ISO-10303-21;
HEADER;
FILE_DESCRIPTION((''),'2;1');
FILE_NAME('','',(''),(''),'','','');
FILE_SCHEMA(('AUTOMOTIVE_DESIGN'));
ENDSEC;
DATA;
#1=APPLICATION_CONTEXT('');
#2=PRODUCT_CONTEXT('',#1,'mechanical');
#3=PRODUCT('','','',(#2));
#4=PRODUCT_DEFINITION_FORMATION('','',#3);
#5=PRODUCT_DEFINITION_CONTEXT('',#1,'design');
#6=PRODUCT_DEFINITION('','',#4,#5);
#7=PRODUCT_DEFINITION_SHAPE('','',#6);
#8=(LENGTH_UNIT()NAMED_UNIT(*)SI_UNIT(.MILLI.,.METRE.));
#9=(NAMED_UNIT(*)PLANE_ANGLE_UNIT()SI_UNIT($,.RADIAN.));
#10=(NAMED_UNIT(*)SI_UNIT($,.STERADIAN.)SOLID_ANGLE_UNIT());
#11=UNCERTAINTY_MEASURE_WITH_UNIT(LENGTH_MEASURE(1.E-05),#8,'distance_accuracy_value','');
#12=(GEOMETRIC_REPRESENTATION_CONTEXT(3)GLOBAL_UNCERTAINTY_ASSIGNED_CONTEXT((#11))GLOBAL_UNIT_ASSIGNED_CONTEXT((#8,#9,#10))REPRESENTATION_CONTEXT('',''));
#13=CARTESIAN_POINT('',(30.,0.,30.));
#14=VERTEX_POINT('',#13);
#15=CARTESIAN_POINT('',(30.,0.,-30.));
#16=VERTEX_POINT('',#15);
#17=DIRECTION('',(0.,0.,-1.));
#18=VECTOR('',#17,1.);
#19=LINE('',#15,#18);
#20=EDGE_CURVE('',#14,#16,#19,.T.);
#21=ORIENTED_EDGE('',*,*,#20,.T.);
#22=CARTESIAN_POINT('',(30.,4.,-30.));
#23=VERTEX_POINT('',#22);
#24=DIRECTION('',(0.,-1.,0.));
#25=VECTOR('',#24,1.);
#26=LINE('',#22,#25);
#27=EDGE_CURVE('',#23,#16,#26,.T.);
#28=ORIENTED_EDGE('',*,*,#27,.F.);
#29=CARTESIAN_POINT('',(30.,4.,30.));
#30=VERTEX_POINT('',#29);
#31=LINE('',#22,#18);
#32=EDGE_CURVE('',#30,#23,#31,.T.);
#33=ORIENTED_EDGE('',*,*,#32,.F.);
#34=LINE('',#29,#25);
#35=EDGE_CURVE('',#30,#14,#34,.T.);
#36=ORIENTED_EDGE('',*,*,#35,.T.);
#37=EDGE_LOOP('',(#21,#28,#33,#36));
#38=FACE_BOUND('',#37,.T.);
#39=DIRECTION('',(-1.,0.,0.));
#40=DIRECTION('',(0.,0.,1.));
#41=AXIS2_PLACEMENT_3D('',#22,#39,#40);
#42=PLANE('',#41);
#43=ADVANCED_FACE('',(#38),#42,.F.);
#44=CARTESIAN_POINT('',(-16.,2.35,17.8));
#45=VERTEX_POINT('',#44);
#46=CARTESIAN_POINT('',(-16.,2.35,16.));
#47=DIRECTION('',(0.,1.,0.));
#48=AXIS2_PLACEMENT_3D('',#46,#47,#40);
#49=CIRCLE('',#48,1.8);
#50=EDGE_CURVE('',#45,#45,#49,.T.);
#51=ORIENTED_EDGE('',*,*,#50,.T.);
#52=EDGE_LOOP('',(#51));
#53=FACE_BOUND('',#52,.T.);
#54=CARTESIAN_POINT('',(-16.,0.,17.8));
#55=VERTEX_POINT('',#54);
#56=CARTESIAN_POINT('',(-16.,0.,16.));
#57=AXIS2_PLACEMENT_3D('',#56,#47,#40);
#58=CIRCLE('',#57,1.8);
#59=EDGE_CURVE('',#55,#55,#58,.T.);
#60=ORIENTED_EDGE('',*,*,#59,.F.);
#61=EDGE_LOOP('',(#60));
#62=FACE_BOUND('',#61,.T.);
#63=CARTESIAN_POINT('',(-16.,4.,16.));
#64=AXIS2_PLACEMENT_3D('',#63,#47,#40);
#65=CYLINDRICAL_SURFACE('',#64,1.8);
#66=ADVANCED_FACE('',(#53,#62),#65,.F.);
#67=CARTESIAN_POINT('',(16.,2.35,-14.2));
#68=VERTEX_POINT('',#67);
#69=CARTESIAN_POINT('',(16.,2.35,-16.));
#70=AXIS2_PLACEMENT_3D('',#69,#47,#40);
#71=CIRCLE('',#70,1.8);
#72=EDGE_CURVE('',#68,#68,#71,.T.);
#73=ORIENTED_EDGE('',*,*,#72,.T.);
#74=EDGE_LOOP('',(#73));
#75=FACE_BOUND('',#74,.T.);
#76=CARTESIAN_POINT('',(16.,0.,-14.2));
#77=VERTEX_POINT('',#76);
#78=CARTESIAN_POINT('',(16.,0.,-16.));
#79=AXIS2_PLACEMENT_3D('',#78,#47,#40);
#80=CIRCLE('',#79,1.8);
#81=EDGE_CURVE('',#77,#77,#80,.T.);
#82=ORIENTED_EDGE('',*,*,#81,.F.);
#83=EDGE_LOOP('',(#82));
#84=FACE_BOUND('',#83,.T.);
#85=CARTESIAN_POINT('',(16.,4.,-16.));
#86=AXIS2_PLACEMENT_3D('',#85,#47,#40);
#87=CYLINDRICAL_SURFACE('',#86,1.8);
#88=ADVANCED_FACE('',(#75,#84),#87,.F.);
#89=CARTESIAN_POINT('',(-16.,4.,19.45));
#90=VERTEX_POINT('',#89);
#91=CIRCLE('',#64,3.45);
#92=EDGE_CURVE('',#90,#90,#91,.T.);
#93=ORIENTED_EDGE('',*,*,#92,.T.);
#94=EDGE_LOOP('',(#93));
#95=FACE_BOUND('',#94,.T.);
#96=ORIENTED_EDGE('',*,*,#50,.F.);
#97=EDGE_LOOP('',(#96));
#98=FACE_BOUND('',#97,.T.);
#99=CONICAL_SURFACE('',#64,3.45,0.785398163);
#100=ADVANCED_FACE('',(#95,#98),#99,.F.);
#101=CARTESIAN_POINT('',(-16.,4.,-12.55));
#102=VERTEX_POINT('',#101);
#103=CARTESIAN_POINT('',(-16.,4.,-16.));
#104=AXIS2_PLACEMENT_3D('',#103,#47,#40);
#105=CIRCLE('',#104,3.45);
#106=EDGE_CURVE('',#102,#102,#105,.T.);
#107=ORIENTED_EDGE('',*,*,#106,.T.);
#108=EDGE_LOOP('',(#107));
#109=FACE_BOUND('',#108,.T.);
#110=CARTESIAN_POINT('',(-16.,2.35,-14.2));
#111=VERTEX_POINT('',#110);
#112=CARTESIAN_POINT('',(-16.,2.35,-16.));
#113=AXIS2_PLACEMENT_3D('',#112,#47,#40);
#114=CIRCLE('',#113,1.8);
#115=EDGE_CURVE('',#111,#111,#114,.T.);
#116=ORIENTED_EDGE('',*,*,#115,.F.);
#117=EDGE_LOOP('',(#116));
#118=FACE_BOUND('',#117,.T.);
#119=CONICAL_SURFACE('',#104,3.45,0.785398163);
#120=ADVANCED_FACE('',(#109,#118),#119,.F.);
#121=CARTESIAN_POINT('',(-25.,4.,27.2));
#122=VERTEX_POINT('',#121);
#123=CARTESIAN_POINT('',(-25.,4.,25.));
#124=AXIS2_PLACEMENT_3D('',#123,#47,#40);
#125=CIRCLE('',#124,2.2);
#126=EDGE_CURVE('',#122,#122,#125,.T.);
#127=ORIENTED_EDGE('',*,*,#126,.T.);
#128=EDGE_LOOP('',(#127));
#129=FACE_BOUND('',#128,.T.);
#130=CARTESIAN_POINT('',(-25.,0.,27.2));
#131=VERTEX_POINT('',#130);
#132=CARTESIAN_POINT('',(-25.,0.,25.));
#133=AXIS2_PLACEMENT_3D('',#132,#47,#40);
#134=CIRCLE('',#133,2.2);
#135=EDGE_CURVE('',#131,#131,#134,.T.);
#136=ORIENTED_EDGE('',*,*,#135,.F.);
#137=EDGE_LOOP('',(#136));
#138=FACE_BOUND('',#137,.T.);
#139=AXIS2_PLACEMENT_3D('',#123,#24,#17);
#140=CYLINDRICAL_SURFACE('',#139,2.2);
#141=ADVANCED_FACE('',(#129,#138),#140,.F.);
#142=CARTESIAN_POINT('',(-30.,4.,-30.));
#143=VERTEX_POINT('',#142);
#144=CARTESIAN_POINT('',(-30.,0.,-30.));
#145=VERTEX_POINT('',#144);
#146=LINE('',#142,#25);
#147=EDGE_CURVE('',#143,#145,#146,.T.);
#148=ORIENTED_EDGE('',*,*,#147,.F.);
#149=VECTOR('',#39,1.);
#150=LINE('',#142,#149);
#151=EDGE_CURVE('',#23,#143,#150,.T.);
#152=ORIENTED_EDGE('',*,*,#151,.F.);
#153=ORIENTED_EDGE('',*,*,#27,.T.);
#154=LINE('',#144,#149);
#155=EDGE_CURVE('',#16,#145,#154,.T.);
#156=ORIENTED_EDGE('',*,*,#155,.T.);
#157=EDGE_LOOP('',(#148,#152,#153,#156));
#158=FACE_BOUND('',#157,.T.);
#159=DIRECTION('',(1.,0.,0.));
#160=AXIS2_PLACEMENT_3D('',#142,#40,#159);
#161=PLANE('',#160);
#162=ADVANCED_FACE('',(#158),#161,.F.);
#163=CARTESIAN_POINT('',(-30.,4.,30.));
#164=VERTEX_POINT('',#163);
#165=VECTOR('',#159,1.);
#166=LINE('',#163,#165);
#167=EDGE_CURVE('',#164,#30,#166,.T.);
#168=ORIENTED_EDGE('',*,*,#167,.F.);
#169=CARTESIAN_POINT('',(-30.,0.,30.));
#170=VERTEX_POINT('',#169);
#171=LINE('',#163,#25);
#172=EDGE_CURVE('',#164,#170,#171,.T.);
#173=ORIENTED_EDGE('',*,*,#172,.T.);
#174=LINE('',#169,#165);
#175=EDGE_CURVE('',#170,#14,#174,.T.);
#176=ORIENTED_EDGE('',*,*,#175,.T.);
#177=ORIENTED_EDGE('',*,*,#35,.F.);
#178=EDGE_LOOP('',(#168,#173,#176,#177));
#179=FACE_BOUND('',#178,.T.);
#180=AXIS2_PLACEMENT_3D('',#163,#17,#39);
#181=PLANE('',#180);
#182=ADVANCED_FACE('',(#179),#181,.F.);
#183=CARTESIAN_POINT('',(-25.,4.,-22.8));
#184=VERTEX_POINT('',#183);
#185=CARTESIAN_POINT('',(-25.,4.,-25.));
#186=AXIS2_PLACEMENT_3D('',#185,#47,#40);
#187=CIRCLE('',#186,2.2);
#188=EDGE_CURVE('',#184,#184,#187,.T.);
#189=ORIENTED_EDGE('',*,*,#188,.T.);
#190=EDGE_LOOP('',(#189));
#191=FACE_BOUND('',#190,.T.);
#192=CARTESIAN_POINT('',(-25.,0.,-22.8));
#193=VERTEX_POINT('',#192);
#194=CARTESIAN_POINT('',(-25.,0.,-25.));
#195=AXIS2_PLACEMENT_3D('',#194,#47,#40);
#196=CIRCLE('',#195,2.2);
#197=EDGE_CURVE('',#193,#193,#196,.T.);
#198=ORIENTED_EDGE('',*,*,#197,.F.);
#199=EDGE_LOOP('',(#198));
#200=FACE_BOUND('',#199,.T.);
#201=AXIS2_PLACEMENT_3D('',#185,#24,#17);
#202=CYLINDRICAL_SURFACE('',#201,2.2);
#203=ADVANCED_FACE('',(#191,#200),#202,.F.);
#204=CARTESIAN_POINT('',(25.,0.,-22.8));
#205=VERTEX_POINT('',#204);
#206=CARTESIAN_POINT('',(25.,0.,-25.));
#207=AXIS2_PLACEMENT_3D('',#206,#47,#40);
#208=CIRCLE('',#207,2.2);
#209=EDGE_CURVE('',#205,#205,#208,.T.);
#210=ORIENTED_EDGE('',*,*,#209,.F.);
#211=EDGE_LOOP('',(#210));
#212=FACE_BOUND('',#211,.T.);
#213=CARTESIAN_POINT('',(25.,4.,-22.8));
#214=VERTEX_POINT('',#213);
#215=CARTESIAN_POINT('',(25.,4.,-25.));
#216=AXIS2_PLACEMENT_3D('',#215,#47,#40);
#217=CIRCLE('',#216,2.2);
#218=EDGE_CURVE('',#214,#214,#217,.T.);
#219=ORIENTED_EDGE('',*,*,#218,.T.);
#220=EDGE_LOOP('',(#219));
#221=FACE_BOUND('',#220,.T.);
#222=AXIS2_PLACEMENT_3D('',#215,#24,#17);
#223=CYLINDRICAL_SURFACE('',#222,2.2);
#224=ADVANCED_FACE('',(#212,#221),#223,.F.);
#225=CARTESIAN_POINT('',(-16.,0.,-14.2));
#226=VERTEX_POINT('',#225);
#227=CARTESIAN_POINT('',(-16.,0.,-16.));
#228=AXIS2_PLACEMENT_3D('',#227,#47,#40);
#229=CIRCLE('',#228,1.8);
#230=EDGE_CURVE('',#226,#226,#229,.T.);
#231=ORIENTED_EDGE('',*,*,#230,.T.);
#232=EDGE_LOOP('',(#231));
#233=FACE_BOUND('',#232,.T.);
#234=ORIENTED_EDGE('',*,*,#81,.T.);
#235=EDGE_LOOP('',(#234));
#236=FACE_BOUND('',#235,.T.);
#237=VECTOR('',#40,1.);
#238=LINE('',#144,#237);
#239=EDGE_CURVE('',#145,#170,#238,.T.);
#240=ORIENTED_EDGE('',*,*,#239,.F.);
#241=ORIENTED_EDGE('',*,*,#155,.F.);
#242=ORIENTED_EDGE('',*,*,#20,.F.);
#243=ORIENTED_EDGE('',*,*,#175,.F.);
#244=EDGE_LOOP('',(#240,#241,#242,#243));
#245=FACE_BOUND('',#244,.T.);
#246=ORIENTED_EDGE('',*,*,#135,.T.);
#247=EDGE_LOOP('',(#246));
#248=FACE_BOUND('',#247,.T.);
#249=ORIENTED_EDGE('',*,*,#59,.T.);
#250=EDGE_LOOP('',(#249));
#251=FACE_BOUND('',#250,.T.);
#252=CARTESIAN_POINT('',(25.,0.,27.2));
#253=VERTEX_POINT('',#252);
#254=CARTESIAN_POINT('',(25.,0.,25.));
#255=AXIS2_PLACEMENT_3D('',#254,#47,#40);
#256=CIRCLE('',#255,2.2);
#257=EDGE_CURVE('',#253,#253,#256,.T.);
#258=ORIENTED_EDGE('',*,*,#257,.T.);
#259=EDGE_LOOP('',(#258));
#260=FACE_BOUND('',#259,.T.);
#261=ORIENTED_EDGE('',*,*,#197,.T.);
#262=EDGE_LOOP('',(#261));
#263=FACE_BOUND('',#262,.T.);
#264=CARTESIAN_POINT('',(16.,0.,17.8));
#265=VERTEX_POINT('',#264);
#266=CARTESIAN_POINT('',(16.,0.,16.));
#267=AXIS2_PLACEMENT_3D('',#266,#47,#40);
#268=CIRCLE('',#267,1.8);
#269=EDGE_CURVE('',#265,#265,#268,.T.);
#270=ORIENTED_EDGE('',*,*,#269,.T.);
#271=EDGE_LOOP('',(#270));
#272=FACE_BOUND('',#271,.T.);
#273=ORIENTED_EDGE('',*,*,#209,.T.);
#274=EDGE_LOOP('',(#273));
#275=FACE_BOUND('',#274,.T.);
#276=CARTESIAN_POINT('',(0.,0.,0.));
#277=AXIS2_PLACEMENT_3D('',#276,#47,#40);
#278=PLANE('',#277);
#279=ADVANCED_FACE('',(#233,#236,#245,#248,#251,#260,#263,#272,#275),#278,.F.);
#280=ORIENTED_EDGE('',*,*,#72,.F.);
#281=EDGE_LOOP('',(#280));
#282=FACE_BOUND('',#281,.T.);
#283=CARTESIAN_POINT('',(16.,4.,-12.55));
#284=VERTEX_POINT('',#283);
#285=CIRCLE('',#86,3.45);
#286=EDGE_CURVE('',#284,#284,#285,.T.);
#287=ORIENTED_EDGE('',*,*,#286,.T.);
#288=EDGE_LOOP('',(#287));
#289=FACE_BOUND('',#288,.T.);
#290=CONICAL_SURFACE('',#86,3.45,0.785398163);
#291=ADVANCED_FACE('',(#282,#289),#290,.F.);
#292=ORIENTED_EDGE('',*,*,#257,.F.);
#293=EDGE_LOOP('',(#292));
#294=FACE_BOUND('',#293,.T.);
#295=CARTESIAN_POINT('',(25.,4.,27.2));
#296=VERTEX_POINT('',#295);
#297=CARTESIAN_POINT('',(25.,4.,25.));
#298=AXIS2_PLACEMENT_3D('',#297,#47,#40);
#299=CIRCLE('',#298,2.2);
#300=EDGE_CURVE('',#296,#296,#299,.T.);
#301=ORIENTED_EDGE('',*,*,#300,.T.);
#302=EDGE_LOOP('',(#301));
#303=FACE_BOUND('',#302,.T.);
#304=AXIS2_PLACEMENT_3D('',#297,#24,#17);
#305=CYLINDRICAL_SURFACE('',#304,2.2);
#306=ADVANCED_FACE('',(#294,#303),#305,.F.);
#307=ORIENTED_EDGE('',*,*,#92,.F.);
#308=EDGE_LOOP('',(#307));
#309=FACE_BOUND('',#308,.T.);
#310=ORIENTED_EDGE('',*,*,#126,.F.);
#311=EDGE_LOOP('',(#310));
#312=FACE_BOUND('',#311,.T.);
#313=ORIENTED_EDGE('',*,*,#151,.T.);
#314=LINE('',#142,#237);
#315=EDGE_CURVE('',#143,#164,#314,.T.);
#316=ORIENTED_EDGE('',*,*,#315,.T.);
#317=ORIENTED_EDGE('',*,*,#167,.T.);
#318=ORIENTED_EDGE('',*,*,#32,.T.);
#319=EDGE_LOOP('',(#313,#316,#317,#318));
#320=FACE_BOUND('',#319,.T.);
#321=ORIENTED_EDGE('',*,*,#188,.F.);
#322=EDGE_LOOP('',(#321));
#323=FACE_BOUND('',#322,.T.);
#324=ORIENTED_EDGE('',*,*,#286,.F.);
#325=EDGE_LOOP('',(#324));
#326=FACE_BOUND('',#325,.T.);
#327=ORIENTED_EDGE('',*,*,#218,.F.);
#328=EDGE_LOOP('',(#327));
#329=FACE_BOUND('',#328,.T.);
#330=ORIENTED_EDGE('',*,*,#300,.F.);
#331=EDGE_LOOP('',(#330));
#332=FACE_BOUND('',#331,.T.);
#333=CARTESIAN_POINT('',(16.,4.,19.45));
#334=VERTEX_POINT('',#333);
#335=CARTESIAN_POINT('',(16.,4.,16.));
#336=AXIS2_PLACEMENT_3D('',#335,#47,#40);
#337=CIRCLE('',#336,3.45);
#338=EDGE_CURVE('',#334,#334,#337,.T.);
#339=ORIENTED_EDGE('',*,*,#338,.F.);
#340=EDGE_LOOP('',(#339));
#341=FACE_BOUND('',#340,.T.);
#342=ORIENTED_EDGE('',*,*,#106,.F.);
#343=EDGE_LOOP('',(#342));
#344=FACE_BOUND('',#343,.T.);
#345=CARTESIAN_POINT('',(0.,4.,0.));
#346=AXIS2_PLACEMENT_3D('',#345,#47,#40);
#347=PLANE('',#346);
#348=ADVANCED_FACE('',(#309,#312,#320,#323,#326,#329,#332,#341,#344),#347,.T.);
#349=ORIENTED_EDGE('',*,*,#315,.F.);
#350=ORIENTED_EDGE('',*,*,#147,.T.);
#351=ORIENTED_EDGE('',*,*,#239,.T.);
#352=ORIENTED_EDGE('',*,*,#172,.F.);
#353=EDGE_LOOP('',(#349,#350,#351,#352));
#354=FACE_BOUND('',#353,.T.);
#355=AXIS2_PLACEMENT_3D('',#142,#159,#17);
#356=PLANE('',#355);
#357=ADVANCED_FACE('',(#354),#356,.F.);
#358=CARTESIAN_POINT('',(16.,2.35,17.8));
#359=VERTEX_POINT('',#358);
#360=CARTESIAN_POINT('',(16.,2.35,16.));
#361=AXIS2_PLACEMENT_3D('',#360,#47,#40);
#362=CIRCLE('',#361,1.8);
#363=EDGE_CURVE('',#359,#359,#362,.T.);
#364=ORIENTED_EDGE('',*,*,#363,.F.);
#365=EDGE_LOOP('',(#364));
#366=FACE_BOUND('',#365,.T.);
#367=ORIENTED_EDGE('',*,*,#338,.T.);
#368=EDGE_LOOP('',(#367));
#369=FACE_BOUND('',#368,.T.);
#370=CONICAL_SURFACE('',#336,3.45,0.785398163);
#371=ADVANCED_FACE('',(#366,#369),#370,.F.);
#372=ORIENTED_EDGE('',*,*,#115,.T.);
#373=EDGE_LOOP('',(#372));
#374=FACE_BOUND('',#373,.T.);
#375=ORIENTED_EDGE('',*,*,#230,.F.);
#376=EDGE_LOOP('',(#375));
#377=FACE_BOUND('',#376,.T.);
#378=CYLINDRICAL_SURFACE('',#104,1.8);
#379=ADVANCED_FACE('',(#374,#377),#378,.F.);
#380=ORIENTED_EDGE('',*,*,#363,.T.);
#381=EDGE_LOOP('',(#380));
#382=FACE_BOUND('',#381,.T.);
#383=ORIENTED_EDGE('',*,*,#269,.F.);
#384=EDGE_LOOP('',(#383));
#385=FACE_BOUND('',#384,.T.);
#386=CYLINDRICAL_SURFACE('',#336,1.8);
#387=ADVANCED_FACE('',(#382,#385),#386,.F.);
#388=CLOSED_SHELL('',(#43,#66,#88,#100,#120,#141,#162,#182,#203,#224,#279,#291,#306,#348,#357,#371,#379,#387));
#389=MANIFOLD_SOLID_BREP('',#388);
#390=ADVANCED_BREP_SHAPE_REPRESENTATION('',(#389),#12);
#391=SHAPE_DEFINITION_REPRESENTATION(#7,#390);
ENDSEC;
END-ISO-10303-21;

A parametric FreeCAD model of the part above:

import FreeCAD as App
import Part
import Sketcher

V = App.Vector
Q = App.Units.Quantity

doc = App.newDocument("Part")
params = doc.addObject("Spreadsheet::Sheet", "Params")
for row, (alias, value) in enumerate([
    ("sketch1_diameter", "4.4 mm"),
    ("sketch1_diameter2", "3.3 mm"),
    ("sketch1_width", "60 mm"),
    ("pad1_length", "4 mm"),
    ("sketch2_diameter", "3.6 mm"),
    ("hole_diameter", "3.6 mm"),
    ("hole_csink_diameter", "6.9 mm"),
], start=1):
    params.set(f"A{row}", alias)
    params.set(f"B{row}", "=" + value)
    params.setAlias(f"B{row}", alias)

body = doc.addObject("PartDesign::Body", "Body")

sketch1 = body.newObject("Sketcher::SketchObject", "Sketch")
sketch1.AttachmentSupport = (doc.getObject("XZ_Plane"), [""])
sketch1.MapMode = "FlatFace"
sketch1.addGeometry(Part.LineSegment(V(-30, -30, 0), V(-30, 30, 0)), False)
sketch1.addGeometry(Part.LineSegment(V(-30, 30, 0), V(30, 30, 0)), False)
sketch1.addGeometry(Part.LineSegment(V(30, 30, 0), V(30, -30, 0)), False)
sketch1.addGeometry(Part.LineSegment(V(30, -30, 0), V(-30, -30, 0)), False)
sketch1.addGeometry(Part.Circle(V(-25, 25, 0), V(0, 0, 1), 2.2), False)
sketch1.addGeometry(Part.Circle(V(-16, 16, 0), V(0, 0, 1), 1.6), False)
sketch1.addGeometry(Part.Circle(V(25, 25, 0), V(0, 0, 1), 2.2), False)
sketch1.addGeometry(Part.Circle(V(16, 16, 0), V(0, 0, 1), 1.6), False)
sketch1.addGeometry(Part.Circle(V(-16, -16, 0), V(0, 0, 1), 1.6), False)
sketch1.addGeometry(Part.Circle(V(-25, -25, 0), V(0, 0, 1), 2.2), False)
sketch1.addGeometry(Part.Circle(V(16, -16, 0), V(0, 0, 1), 1.6), False)
sketch1.addGeometry(Part.Circle(V(25, -25, 0), V(0, 0, 1), 2.2), False)
sketch1.addConstraint(Sketcher.Constraint("Coincident", 0, 2, 1, 1))
sketch1.addConstraint(Sketcher.Constraint("Coincident", 1, 2, 2, 1))
sketch1.addConstraint(Sketcher.Constraint("Coincident", 2, 2, 3, 1))
sketch1.addConstraint(Sketcher.Constraint("Coincident", 3, 2, 0, 1))
sketch1.addConstraint(Sketcher.Constraint("Vertical", 0))
sketch1.addConstraint(Sketcher.Constraint("Horizontal", 1))
sketch1.addConstraint(Sketcher.Constraint("Vertical", 2))
sketch1.addConstraint(Sketcher.Constraint("Horizontal", 3))
sketch1.addConstraint(Sketcher.Constraint("Equal", 4, 6))
sketch1.addConstraint(Sketcher.Constraint("Equal", 5, 7))
sketch1.addConstraint(Sketcher.Constraint("Equal", 7, 8))
sketch1.addConstraint(Sketcher.Constraint("Equal", 6, 9))
sketch1.addConstraint(Sketcher.Constraint("Equal", 8, 10))
sketch1.addConstraint(Sketcher.Constraint("Equal", 9, 11))
sketch1.addConstraint(Sketcher.Constraint("Symmetric", 7, 3, 8, 3, -1, 1))
sketch1.addConstraint(Sketcher.Constraint("Symmetric", 6, 3, 9, 3, -1, 1))
sketch1.addConstraint(Sketcher.Constraint("Symmetric", 5, 3, 10, 3, -1, 1))
sketch1.addConstraint(Sketcher.Constraint("Symmetric", 4, 3, 11, 3, -1, 1))
sketch1.addConstraint(Sketcher.Constraint("Symmetric", 0, 2, 2, 2, -1, 1))
sketch1.addConstraint(Sketcher.Constraint("Symmetric", 4, 3, 6, 3, -2))
sketch1.addConstraint(Sketcher.Constraint("Symmetric", 5, 3, 7, 3, -2))
sketch1.addConstraint(Sketcher.Constraint("Equal", 3, 0))
sketch1.addConstraint(Sketcher.Constraint("Diameter", 4, Q("4.4 mm")))
sketch1.addConstraint(Sketcher.Constraint("Diameter", 5, Q("3.3 mm")))
sketch1.addConstraint(Sketcher.Constraint("DistanceX", 1, 1, 1, 2, Q("60 mm")))
sketch1.addConstraint(Sketcher.Constraint("DistanceX", 4, 3, -1, 1, Q("25 mm")))
sketch1.addConstraint(Sketcher.Constraint("DistanceY", -1, 1, 4, 3, Q("25 mm")))
sketch1.addConstraint(Sketcher.Constraint("DistanceX", 5, 3, -1, 1, Q("16 mm")))
sketch1.addConstraint(Sketcher.Constraint("DistanceY", -1, 1, 5, 3, Q("16 mm")))
sketch1.setExpression("Constraints[22]", "Params.sketch1_diameter")
sketch1.setExpression("Constraints[23]", "Params.sketch1_diameter2")
sketch1.setExpression("Constraints[24]", "Params.sketch1_width")
pad1 = body.newObject("PartDesign::Pad", "Pad")
pad1.Profile = sketch1
pad1.setExpression("Length", "Params.pad1_length")
pad1.Reversed = True

sketch2 = body.newObject("Sketcher::SketchObject", "Sketch001")
sketch2.AttachmentSupport = (doc.getObject("XZ_Plane"), [""])
sketch2.MapMode = "FlatFace"
sketch2.AttachmentOffset = App.Placement(V(0, 0, -4), App.Rotation())
sketch2.addGeometry(Part.Circle(V(16, -16, 0), V(0, 0, 1), 1.8), False)
sketch2.addGeometry(Part.Circle(V(16, 16, 0), V(0, 0, 1), 1.8), False)
sketch2.addGeometry(Part.Circle(V(-16, 16, 0), V(0, 0, 1), 1.8), False)
sketch2.addGeometry(Part.Circle(V(-16, -16, 0), V(0, 0, 1), 1.8), False)
sketch2.addConstraint(Sketcher.Constraint("Equal", 0, 1))
sketch2.addConstraint(Sketcher.Constraint("Equal", 1, 2))
sketch2.addConstraint(Sketcher.Constraint("Equal", 2, 3))
sketch2.addConstraint(Sketcher.Constraint("Symmetric", 0, 3, 2, 3, -1, 1))
sketch2.addConstraint(Sketcher.Constraint("Symmetric", 1, 3, 3, 3, -1, 1))
sketch2.addConstraint(Sketcher.Constraint("Symmetric", 1, 3, 2, 3, -2))
sketch2.addConstraint(Sketcher.Constraint("Diameter", 0, Q("3.6 mm")))
sketch2.addConstraint(Sketcher.Constraint("DistanceX", -1, 1, 0, 3, Q("16 mm")))
sketch2.addConstraint(Sketcher.Constraint("DistanceY", 0, 3, -1, 1, Q("16 mm")))
sketch2.setExpression("Constraints[6]", "Params.sketch2_diameter")
doc.recompute()
hole = body.newObject("PartDesign::Hole", "Hole")
hole.Profile = sketch2
hole.ThreadType = "None"
hole.setExpression("Diameter", "Params.hole_diameter")
hole.DepthType = "ThroughAll"
hole.HoleCutType = "Countersink"
hole.setExpression("HoleCutDiameter", "Params.hole_csink_diameter")
hole.HoleCutCountersinkAngle = 90
hole.Reversed = True

doc.recompute()
